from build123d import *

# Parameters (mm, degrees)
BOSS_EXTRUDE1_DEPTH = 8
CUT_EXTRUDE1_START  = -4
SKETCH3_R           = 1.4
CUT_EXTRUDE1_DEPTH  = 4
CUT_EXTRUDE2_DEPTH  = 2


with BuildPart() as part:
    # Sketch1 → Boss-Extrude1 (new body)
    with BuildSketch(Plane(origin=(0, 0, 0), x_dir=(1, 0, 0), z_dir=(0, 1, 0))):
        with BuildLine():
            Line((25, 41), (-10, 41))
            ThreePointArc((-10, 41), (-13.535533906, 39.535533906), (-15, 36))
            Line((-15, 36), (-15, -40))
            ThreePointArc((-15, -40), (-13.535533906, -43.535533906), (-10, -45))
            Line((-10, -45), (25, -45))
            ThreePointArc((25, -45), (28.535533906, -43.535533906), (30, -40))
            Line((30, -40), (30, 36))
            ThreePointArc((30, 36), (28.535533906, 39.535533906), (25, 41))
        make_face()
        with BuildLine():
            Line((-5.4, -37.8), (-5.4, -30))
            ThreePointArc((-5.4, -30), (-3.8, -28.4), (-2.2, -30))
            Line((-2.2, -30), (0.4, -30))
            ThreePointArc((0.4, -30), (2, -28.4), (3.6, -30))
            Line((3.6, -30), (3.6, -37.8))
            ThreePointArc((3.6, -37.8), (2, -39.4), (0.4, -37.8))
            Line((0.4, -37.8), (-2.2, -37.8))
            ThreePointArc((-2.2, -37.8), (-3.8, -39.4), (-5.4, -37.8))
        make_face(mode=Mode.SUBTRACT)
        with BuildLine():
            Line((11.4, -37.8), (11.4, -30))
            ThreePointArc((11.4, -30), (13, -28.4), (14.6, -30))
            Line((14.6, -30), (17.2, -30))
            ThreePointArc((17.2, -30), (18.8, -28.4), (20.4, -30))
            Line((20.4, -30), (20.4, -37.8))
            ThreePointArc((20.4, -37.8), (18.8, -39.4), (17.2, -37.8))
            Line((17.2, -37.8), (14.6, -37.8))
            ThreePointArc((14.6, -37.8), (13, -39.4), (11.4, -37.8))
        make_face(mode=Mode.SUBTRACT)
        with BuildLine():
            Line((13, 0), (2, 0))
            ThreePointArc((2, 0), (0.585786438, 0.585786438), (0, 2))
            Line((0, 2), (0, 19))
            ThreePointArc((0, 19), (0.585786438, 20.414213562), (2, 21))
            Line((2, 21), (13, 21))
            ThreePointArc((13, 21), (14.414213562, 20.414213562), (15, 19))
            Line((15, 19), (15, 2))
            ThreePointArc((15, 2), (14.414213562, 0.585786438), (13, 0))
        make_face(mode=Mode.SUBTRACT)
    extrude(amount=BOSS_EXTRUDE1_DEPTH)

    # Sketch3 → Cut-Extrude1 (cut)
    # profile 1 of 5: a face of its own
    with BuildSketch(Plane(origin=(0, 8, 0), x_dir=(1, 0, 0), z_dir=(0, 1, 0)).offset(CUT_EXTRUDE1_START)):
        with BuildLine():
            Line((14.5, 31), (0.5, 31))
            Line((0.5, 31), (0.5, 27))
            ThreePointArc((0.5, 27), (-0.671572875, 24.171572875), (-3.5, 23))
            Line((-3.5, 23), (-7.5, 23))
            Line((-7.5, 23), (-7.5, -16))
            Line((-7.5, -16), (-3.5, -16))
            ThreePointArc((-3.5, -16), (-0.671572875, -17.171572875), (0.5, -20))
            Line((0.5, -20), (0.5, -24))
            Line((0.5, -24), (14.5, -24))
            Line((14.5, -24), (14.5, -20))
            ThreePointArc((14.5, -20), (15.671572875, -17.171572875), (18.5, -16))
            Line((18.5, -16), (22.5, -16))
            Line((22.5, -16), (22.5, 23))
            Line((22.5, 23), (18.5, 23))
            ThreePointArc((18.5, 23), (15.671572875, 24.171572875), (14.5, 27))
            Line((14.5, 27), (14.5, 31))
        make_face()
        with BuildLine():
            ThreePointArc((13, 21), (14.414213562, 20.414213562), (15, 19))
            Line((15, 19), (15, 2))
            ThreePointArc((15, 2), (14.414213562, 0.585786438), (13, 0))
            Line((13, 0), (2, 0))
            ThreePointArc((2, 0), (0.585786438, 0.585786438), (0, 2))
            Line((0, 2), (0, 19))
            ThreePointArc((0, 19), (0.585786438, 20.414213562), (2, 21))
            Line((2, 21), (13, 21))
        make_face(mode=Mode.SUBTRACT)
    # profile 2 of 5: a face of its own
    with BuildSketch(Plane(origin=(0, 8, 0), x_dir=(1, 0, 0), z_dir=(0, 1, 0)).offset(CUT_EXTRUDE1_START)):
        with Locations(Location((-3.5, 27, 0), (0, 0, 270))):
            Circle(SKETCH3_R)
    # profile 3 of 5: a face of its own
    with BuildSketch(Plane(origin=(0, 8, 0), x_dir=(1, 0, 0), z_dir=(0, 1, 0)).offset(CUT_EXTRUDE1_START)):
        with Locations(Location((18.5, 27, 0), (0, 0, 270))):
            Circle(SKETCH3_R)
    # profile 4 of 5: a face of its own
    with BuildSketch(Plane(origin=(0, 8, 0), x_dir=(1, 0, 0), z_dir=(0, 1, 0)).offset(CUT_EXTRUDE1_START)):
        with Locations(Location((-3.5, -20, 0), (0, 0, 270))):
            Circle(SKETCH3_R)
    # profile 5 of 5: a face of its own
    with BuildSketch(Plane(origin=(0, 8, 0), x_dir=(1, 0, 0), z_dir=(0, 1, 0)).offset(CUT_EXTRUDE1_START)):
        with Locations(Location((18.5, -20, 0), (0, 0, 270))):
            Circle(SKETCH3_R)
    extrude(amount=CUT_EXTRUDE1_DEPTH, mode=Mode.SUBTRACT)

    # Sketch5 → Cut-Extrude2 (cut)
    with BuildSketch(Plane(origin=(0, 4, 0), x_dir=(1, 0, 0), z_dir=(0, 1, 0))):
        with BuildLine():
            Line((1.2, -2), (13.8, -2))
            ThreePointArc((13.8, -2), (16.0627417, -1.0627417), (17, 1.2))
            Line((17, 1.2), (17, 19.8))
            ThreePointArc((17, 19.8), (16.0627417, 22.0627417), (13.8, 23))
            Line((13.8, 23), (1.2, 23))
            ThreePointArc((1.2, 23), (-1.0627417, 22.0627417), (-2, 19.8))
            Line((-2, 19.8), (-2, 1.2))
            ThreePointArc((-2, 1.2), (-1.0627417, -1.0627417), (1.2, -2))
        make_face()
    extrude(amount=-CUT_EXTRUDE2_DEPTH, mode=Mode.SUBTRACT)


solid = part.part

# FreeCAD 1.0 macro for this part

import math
import FreeCAD as App
import Part
import Sketcher

V = App.Vector

doc = App.newDocument("Part")
body = doc.addObject("PartDesign::Body", "Body")

sketch1 = body.newObject("Sketcher::SketchObject", "Sketch")
sketch1.AttachmentSupport = (doc.getObject("XZ_Plane"), [""])
sketch1.MapMode = "FlatFace"
sketch1.addGeometry([
    Part.LineSegment(V(25, -41, 0), V(-10, -41, 0)),
    Part.ArcOfCircle(Part.Circle(V(-10, -36, 0), V(0, 0, 1), 5), math.radians(180), math.radians(270)),
    Part.LineSegment(V(-15, -36, 0), V(-15, 40, 0)),
    Part.ArcOfCircle(Part.Circle(V(-10, 40, 0), V(0, 0, 1), 5), math.radians(90), math.radians(180)),
    Part.LineSegment(V(-10, 45, 0), V(25, 45, 0)),
    Part.ArcOfCircle(Part.Circle(V(25, 40, 0), V(0, 0, 1), 5), math.radians(0), math.radians(90)),
    Part.LineSegment(V(30, 40, 0), V(30, -36, 0)),
    Part.ArcOfCircle(Part.Circle(V(25, -36, 0), V(0, 0, 1), 5), math.radians(-90), math.radians(0)),
    Part.ArcOfCircle(Part.Circle(V(-3.8, 37.8, 0), V(0, 0, 1), 1.6), math.radians(0), math.radians(180)),
    Part.LineSegment(V(-5.4, 37.8, 0), V(-5.4, 30, 0)),
    Part.ArcOfCircle(Part.Circle(V(-3.8, 30, 0), V(0, 0, 1), 1.6), math.radians(180), math.radians(360)),
    Part.LineSegment(V(-2.2, 30, 0), V(0.4, 30, 0)),
    Part.ArcOfCircle(Part.Circle(V(2, 30, 0), V(0, 0, 1), 1.6), math.radians(180), math.radians(360)),
    Part.LineSegment(V(3.6, 30, 0), V(3.6, 37.8, 0)),
    Part.ArcOfCircle(Part.Circle(V(2, 37.8, 0), V(0, 0, 1), 1.6), math.radians(0), math.radians(180)),
    Part.LineSegment(V(0.4, 37.8, 0), V(-2.2, 37.8, 0)),
    Part.ArcOfCircle(Part.Circle(V(13, 37.8, 0), V(0, 0, 1), 1.6), math.radians(0), math.radians(180)),
    Part.LineSegment(V(11.4, 37.8, 0), V(11.4, 30, 0)),
    Part.ArcOfCircle(Part.Circle(V(13, 30, 0), V(0, 0, 1), 1.6), math.radians(180), math.radians(360)),
    Part.LineSegment(V(14.6, 30, 0), V(17.2, 30, 0)),
    Part.ArcOfCircle(Part.Circle(V(18.8, 30, 0), V(0, 0, 1), 1.6), math.radians(180), math.radians(360)),
    Part.LineSegment(V(20.4, 30, 0), V(20.4, 37.8, 0)),
    Part.ArcOfCircle(Part.Circle(V(18.8, 37.8, 0), V(0, 0, 1), 1.6), math.radians(0), math.radians(180)),
    Part.LineSegment(V(17.2, 37.8, 0), V(14.6, 37.8, 0)),
    Part.ArcOfCircle(Part.Circle(V(13, -2, 0), V(0, 0, 1), 2), math.radians(0), math.radians(90)),
    Part.LineSegment(V(13, 0, 0), V(2, 0, 0)),
    Part.ArcOfCircle(Part.Circle(V(2, -2, 0), V(0, 0, 1), 2), math.radians(90), math.radians(180)),
    Part.LineSegment(V(0, -2, 0), V(0, -19, 0)),
    Part.ArcOfCircle(Part.Circle(V(2, -19, 0), V(0, 0, 1), 2), math.radians(-180), math.radians(-90)),
    Part.LineSegment(V(2, -21, 0), V(13, -21, 0)),
    Part.ArcOfCircle(Part.Circle(V(13, -19, 0), V(0, 0, 1), 2), math.radians(-90), math.radians(0)),
    Part.LineSegment(V(15, -19, 0), V(15, -2, 0)),
], False)
sketch1.addConstraint([
    Sketcher.Constraint("Tangent", 0, 2, 1, 2),
    Sketcher.Constraint("Tangent", 1, 1, 2, 1),
    Sketcher.Constraint("Tangent", 2, 2, 3, 2),
    Sketcher.Constraint("Tangent", 3, 1, 4, 1),
    Sketcher.Constraint("Tangent", 4, 2, 5, 2),
    Sketcher.Constraint("Tangent", 5, 1, 6, 1),
    Sketcher.Constraint("Tangent", 6, 2, 7, 2),
    Sketcher.Constraint("Tangent", 7, 1, 0, 1),
    Sketcher.Constraint("Tangent", 8, 2, 9, 1),
    Sketcher.Constraint("Tangent", 9, 2, 10, 1),
    Sketcher.Constraint("Coincident", 10, 2, 11, 1),
    Sketcher.Constraint("Coincident", 11, 2, 12, 1),
    Sketcher.Constraint("Tangent", 12, 2, 13, 1),
    Sketcher.Constraint("Tangent", 13, 2, 14, 1),
    Sketcher.Constraint("Coincident", 14, 2, 15, 1),
    Sketcher.Constraint("Coincident", 15, 2, 8, 1),
    Sketcher.Constraint("Tangent", 16, 2, 17, 1),
    Sketcher.Constraint("Tangent", 17, 2, 18, 1),
    Sketcher.Constraint("Coincident", 18, 2, 19, 1),
    Sketcher.Constraint("Coincident", 19, 2, 20, 1),
    Sketcher.Constraint("Tangent", 20, 2, 21, 1),
    Sketcher.Constraint("Tangent", 21, 2, 22, 1),
    Sketcher.Constraint("Coincident", 22, 2, 23, 1),
    Sketcher.Constraint("Coincident", 23, 2, 16, 1),
    Sketcher.Constraint("Tangent", 24, 2, 25, 1),
    Sketcher.Constraint("Tangent", 25, 2, 26, 1),
    Sketcher.Constraint("Tangent", 26, 2, 27, 1),
    Sketcher.Constraint("Tangent", 27, 2, 28, 1),
    Sketcher.Constraint("Tangent", 28, 2, 29, 1),
    Sketcher.Constraint("Tangent", 29, 2, 30, 1),
    Sketcher.Constraint("Tangent", 30, 2, 31, 1),
    Sketcher.Constraint("Tangent", 31, 2, 24, 1),
    Sketcher.Constraint("Horizontal", 0),
    Sketcher.Constraint("Vertical", 2),
    Sketcher.Constraint("Horizontal", 4),
    Sketcher.Constraint("Vertical", 6),
    Sketcher.Constraint("Vertical", 9),
    Sketcher.Constraint("Horizontal", 11),
    Sketcher.Constraint("Vertical", 13),
    Sketcher.Constraint("Horizontal", 15),
    Sketcher.Constraint("Vertical", 17),
    Sketcher.Constraint("Horizontal", 19),
    Sketcher.Constraint("Vertical", 21),
    Sketcher.Constraint("Horizontal", 23),
    Sketcher.Constraint("Horizontal", 25),
    Sketcher.Constraint("Vertical", 27),
    Sketcher.Constraint("Horizontal", 29),
    Sketcher.Constraint("Vertical", 31),
    Sketcher.Constraint("Equal", 1, 3),
    Sketcher.Constraint("Equal", 3, 5),
    Sketcher.Constraint("Equal", 5, 7),
    Sketcher.Constraint("Equal", 8, 10),
    Sketcher.Constraint("Equal", 10, 12),
    Sketcher.Constraint("Equal", 12, 14),
    Sketcher.Constraint("Equal", 14, 16),
    Sketcher.Constraint("Equal", 16, 18),
    Sketcher.Constraint("Equal", 18, 20),
    Sketcher.Constraint("Equal", 20, 22),
    Sketcher.Constraint("Equal", 24, 26),
    Sketcher.Constraint("Equal", 26, 28),
    Sketcher.Constraint("Equal", 28, 30),
    Sketcher.Constraint("PointOnObject", 24, 2, -1),
    Sketcher.Constraint("PointOnObject", 26, 2, -2),
    Sketcher.Constraint("Horizontal", 10, 3, 12, 3),
    Sketcher.Constraint("Horizontal", 8, 3, 14, 3),
    Sketcher.Constraint("Horizontal", 14, 3, 16, 3),
    Sketcher.Constraint("Horizontal", 12, 3, 18, 3),
    Sketcher.Constraint("Horizontal", 18, 3, 20, 3),
    Sketcher.Constraint("Horizontal", 16, 3, 22, 3),
    Sketcher.Constraint("Horizontal", 9, 2, 10, 2),
    Sketcher.Constraint("Horizontal", 13, 2, 14, 2),
    Sketcher.Constraint("Horizontal", 17, 2, 18, 2),
    Sketcher.Constraint("Horizontal", 21, 2, 22, 2),
    Sketcher.Constraint("Vertical", 18, 3, 24, 3),
    Sketcher.Constraint("Vertical", 14, 3, 26, 3),
    Sketcher.Constraint("Equal", 15, 19),
    Sketcher.Constraint("Radius", 1, 5.0),
    Sketcher.Constraint("Radius", 24, 2.0),
    Sketcher.Constraint("Radius", 8, 1.6),
    Sketcher.Constraint("DistanceX", 0, 2, 0, 1, 35.0),
    Sketcher.Constraint("DistanceX", 25, 2, 25, 1, 11.0),
    Sketcher.Constraint("DistanceY", 2, 1, 2, 2, 76.0),
    Sketcher.Constraint("DistanceY", 27, 2, 27, 1, 17.0),
    Sketcher.Constraint("DistanceX", 11, 1, 11, 2, 2.6),
    Sketcher.Constraint("DistanceY", 9, 2, 9, 1, 7.8),
    Sketcher.Constraint("DistanceX", 1, 3, -1, 1, 10.0),
    Sketcher.Constraint("DistanceY", 1, 3, -1, 1, 36.0),
    Sketcher.Constraint("DistanceY", -1, 1, 10, 3, 30.0),
])
pad1 = body.newObject("PartDesign::Pad", "Pad")
pad1.Profile = sketch1
pad1.Length = 8
pad1.Reversed = True

sketch2 = body.newObject("Sketcher::SketchObject", "Sketch001")
sketch2.AttachmentSupport = (doc.getObject("XZ_Plane"), [""])
sketch2.MapMode = "FlatFace"
sketch2.AttachmentOffset = App.Placement(V(0, 0, -4), App.Rotation())
sketch2.addGeometry([
    Part.LineSegment(V(14.5, -31, 0), V(0.5, -31, 0)),
    Part.LineSegment(V(0.5, -31, 0), V(0.5, -27, 0)),
    Part.ArcOfCircle(Part.Circle(V(-3.5, -27, 0), V(0, 0, 1), 4), math.radians(0), math.radians(90)),
    Part.LineSegment(V(-3.5, -23, 0), V(-7.5, -23, 0)),
    Part.LineSegment(V(-7.5, -23, 0), V(-7.5, 16, 0)),
    Part.LineSegment(V(-7.5, 16, 0), V(-3.5, 16, 0)),
    Part.ArcOfCircle(Part.Circle(V(-3.5, 20, 0), V(0, 0, 1), 4), math.radians(-90), math.radians(0)),
    Part.LineSegment(V(0.5, 20, 0), V(0.5, 24, 0)),
    Part.LineSegment(V(0.5, 24, 0), V(14.5, 24, 0)),
    Part.LineSegment(V(14.5, 24, 0), V(14.5, 20, 0)),
    Part.ArcOfCircle(Part.Circle(V(18.5, 20, 0), V(0, 0, 1), 4), math.radians(180), math.radians(270)),
    Part.LineSegment(V(18.5, 16, 0), V(22.5, 16, 0)),
    Part.LineSegment(V(22.5, 16, 0), V(22.5, -23, 0)),
    Part.LineSegment(V(22.5, -23, 0), V(18.5, -23, 0)),
    Part.ArcOfCircle(Part.Circle(V(18.5, -27, 0), V(0, 0, 1), 4), math.radians(90), math.radians(180)),
    Part.LineSegment(V(14.5, -27, 0), V(14.5, -31, 0)),
    Part.LineSegment(V(2, -21, 0), V(13, -21, 0)),
    Part.ArcOfCircle(Part.Circle(V(13, -19, 0), V(0, 0, 1), 2), math.radians(-90), math.radians(0)),
    Part.LineSegment(V(15, -19, 0), V(15, -2, 0)),
    Part.ArcOfCircle(Part.Circle(V(13, -2, 0), V(0, 0, 1), 2), math.radians(0), math.radians(90)),
    Part.LineSegment(V(13, 0, 0), V(2, 0, 0)),
    Part.ArcOfCircle(Part.Circle(V(2, -2, 0), V(0, 0, 1), 2), math.radians(90), math.radians(180)),
    Part.LineSegment(V(0, -2, 0), V(0, -19, 0)),
    Part.ArcOfCircle(Part.Circle(V(2, -19, 0), V(0, 0, 1), 2), math.radians(-180), math.radians(-90)),
    Part.Circle(V(-3.5, -27, 0), V(0, 0, 1), 1.4),
    Part.Circle(V(18.5, -27, 0), V(0, 0, 1), 1.4),
    Part.Circle(V(-3.5, 20, 0), V(0, 0, 1), 1.4),
    Part.Circle(V(18.5, 20, 0), V(0, 0, 1), 1.4),
], False)
sketch2.addConstraint([
    Sketcher.Constraint("Coincident", 0, 2, 1, 1),
    Sketcher.Constraint("Tangent", 1, 2, 2, 1),
    Sketcher.Constraint("Tangent", 2, 2, 3, 1),
    Sketcher.Constraint("Coincident", 3, 2, 4, 1),
    Sketcher.Constraint("Coincident", 4, 2, 5, 1),
    Sketcher.Constraint("Tangent", 5, 2, 6, 1),
    Sketcher.Constraint("Tangent", 6, 2, 7, 1),
    Sketcher.Constraint("Coincident", 7, 2, 8, 1),
    Sketcher.Constraint("Coincident", 8, 2, 9, 1),
    Sketcher.Constraint("Tangent", 9, 2, 10, 1),
    Sketcher.Constraint("Tangent", 10, 2, 11, 1),
    Sketcher.Constraint("Coincident", 11, 2, 12, 1),
    Sketcher.Constraint("Coincident", 12, 2, 13, 1),
    Sketcher.Constraint("Tangent", 13, 2, 14, 1),
    Sketcher.Constraint("Tangent", 14, 2, 15, 1),
    Sketcher.Constraint("Coincident", 15, 2, 0, 1),
    Sketcher.Constraint("Tangent", 16, 2, 17, 1),
    Sketcher.Constraint("Tangent", 17, 2, 18, 1),
    Sketcher.Constraint("Tangent", 18, 2, 19, 1),
    Sketcher.Constraint("Tangent", 19, 2, 20, 1),
    Sketcher.Constraint("Tangent", 20, 2, 21, 1),
    Sketcher.Constraint("Tangent", 21, 2, 22, 1),
    Sketcher.Constraint("Tangent", 22, 2, 23, 1),
    Sketcher.Constraint("Tangent", 23, 2, 16, 1),
    Sketcher.Constraint("Horizontal", 0),
    Sketcher.Constraint("Vertical", 1),
    Sketcher.Constraint("Horizontal", 3),
    Sketcher.Constraint("Vertical", 4),
    Sketcher.Constraint("Horizontal", 5),
    Sketcher.Constraint("Vertical", 7),
    Sketcher.Constraint("Horizontal", 8),
    Sketcher.Constraint("Vertical", 9),
    Sketcher.Constraint("Horizontal", 11),
    Sketcher.Constraint("Vertical", 12),
    Sketcher.Constraint("Horizontal", 13),
    Sketcher.Constraint("Vertical", 15),
    Sketcher.Constraint("Horizontal", 16),
    Sketcher.Constraint("Vertical", 18),
    Sketcher.Constraint("Horizontal", 20),
    Sketcher.Constraint("Vertical", 22),
    Sketcher.Constraint("Coincident", 24, 3, 2, 3),
    Sketcher.Constraint("Coincident", 25, 3, 14, 3),
    Sketcher.Constraint("Coincident", 26, 3, 6, 3),
    Sketcher.Constraint("Coincident", 27, 3, 10, 3),
    Sketcher.Constraint("Equal", 2, 6),
    Sketcher.Constraint("Equal", 6, 10),
    Sketcher.Constraint("Equal", 10, 14),
    Sketcher.Constraint("Equal", 17, 19),
    Sketcher.Constraint("Equal", 19, 21),
    Sketcher.Constraint("Equal", 21, 23),
    Sketcher.Constraint("Equal", 24, 25),
    Sketcher.Constraint("Equal", 25, 26),
    Sketcher.Constraint("Equal", 26, 27),
    Sketcher.Constraint("PointOnObject", 19, 2, -1),
    Sketcher.Constraint("PointOnObject", 21, 2, -2),
    Sketcher.Constraint("Horizontal", 6, 3, 10, 3),
    Sketcher.Constraint("Horizontal", 2, 3, 14, 3),
    Sketcher.Constraint("Vertical", 2, 3, 6, 3),
    Sketcher.Constraint("Vertical", 10, 3, 14, 3),
    Sketcher.Constraint("Equal", 5, 11),
    Sketcher.Constraint("Equal", 13, 1),
    Sketcher.Constraint("Equal", 1, 7),
    Sketcher.Constraint("Radius", 2, 4.0),
    Sketcher.Constraint("Radius", 17, 2.0),
    Sketcher.Constraint("Diameter", 24, 2.8),
    Sketcher.Constraint("DistanceX", 0, 2, 0, 1, 14.0),
    Sketcher.Constraint("DistanceX", 3, 2, 3, 1, 4.0),
    Sketcher.Constraint("DistanceX", 16, 1, 16, 2, 11.0),
    Sketcher.Constraint("DistanceY", 4, 1, 4, 2, 39.0),
    Sketcher.Constraint("DistanceY", 18, 1, 18, 2, 17.0),
    Sketcher.Constraint("DistanceY", 2, 3, -1, 1, 27.0),
    Sketcher.Constraint("DistanceX", 2, 3, -1, 1, 3.5),
])
pocket1 = body.newObject("PartDesign::Pocket", "Pocket")
pocket1.Profile = sketch2
pocket1.Length = 4

sketch3 = body.newObject("Sketcher::SketchObject", "Sketch002")
sketch3.AttachmentSupport = (doc.getObject("XZ_Plane"), [""])
sketch3.MapMode = "FlatFace"
sketch3.AttachmentOffset = App.Placement(V(0, 0, -4), App.Rotation())
sketch3.addGeometry([
    Part.LineSegment(V(1.2, 2, 0), V(13.8, 2, 0)),
    Part.ArcOfCircle(Part.Circle(V(13.8, -1.2, 0), V(0, 0, 1), 3.2), math.radians(0), math.radians(90)),
    Part.LineSegment(V(17, -1.2, 0), V(17, -19.8, 0)),
    Part.ArcOfCircle(Part.Circle(V(13.8, -19.8, 0), V(0, 0, 1), 3.2), math.radians(-90), math.radians(0)),
    Part.LineSegment(V(13.8, -23, 0), V(1.2, -23, 0)),
    Part.ArcOfCircle(Part.Circle(V(1.2, -19.8, 0), V(0, 0, 1), 3.2), math.radians(180), math.radians(270)),
    Part.LineSegment(V(-2, -19.8, 0), V(-2, -1.2, 0)),
    Part.ArcOfCircle(Part.Circle(V(1.2, -1.2, 0), V(0, 0, 1), 3.2), math.radians(90), math.radians(180)),
], False)
sketch3.addConstraint([
    Sketcher.Constraint("Tangent", 0, 2, 1, 2),
    Sketcher.Constraint("Tangent", 1, 1, 2, 1),
    Sketcher.Constraint("Tangent", 2, 2, 3, 2),
    Sketcher.Constraint("Tangent", 3, 1, 4, 1),
    Sketcher.Constraint("Tangent", 4, 2, 5, 2),
    Sketcher.Constraint("Tangent", 5, 1, 6, 1),
    Sketcher.Constraint("Tangent", 6, 2, 7, 2),
    Sketcher.Constraint("Tangent", 7, 1, 0, 1),
    Sketcher.Constraint("Horizontal", 0),
    Sketcher.Constraint("Vertical", 2),
    Sketcher.Constraint("Horizontal", 4),
    Sketcher.Constraint("Vertical", 6),
    Sketcher.Constraint("Equal", 1, 3),
    Sketcher.Constraint("Equal", 3, 5),
    Sketcher.Constraint("Equal", 5, 7),
    Sketcher.Constraint("Radius", 1, 3.2),
    Sketcher.Constraint("DistanceX", 0, 1, 0, 2, 12.6),
    Sketcher.Constraint("DistanceY", 2, 2, 2, 1, 18.6),
    Sketcher.Constraint("DistanceY", -1, 1, 0, 2, 2.0),
    Sketcher.Constraint("DistanceX", -1, 1, 1, 1, 17.0),
])
pocket2 = body.newObject("PartDesign::Pocket", "Pocket001")
pocket2.Profile = sketch3
pocket2.Length = 2
pocket2.Reversed = True

doc.recompute()
